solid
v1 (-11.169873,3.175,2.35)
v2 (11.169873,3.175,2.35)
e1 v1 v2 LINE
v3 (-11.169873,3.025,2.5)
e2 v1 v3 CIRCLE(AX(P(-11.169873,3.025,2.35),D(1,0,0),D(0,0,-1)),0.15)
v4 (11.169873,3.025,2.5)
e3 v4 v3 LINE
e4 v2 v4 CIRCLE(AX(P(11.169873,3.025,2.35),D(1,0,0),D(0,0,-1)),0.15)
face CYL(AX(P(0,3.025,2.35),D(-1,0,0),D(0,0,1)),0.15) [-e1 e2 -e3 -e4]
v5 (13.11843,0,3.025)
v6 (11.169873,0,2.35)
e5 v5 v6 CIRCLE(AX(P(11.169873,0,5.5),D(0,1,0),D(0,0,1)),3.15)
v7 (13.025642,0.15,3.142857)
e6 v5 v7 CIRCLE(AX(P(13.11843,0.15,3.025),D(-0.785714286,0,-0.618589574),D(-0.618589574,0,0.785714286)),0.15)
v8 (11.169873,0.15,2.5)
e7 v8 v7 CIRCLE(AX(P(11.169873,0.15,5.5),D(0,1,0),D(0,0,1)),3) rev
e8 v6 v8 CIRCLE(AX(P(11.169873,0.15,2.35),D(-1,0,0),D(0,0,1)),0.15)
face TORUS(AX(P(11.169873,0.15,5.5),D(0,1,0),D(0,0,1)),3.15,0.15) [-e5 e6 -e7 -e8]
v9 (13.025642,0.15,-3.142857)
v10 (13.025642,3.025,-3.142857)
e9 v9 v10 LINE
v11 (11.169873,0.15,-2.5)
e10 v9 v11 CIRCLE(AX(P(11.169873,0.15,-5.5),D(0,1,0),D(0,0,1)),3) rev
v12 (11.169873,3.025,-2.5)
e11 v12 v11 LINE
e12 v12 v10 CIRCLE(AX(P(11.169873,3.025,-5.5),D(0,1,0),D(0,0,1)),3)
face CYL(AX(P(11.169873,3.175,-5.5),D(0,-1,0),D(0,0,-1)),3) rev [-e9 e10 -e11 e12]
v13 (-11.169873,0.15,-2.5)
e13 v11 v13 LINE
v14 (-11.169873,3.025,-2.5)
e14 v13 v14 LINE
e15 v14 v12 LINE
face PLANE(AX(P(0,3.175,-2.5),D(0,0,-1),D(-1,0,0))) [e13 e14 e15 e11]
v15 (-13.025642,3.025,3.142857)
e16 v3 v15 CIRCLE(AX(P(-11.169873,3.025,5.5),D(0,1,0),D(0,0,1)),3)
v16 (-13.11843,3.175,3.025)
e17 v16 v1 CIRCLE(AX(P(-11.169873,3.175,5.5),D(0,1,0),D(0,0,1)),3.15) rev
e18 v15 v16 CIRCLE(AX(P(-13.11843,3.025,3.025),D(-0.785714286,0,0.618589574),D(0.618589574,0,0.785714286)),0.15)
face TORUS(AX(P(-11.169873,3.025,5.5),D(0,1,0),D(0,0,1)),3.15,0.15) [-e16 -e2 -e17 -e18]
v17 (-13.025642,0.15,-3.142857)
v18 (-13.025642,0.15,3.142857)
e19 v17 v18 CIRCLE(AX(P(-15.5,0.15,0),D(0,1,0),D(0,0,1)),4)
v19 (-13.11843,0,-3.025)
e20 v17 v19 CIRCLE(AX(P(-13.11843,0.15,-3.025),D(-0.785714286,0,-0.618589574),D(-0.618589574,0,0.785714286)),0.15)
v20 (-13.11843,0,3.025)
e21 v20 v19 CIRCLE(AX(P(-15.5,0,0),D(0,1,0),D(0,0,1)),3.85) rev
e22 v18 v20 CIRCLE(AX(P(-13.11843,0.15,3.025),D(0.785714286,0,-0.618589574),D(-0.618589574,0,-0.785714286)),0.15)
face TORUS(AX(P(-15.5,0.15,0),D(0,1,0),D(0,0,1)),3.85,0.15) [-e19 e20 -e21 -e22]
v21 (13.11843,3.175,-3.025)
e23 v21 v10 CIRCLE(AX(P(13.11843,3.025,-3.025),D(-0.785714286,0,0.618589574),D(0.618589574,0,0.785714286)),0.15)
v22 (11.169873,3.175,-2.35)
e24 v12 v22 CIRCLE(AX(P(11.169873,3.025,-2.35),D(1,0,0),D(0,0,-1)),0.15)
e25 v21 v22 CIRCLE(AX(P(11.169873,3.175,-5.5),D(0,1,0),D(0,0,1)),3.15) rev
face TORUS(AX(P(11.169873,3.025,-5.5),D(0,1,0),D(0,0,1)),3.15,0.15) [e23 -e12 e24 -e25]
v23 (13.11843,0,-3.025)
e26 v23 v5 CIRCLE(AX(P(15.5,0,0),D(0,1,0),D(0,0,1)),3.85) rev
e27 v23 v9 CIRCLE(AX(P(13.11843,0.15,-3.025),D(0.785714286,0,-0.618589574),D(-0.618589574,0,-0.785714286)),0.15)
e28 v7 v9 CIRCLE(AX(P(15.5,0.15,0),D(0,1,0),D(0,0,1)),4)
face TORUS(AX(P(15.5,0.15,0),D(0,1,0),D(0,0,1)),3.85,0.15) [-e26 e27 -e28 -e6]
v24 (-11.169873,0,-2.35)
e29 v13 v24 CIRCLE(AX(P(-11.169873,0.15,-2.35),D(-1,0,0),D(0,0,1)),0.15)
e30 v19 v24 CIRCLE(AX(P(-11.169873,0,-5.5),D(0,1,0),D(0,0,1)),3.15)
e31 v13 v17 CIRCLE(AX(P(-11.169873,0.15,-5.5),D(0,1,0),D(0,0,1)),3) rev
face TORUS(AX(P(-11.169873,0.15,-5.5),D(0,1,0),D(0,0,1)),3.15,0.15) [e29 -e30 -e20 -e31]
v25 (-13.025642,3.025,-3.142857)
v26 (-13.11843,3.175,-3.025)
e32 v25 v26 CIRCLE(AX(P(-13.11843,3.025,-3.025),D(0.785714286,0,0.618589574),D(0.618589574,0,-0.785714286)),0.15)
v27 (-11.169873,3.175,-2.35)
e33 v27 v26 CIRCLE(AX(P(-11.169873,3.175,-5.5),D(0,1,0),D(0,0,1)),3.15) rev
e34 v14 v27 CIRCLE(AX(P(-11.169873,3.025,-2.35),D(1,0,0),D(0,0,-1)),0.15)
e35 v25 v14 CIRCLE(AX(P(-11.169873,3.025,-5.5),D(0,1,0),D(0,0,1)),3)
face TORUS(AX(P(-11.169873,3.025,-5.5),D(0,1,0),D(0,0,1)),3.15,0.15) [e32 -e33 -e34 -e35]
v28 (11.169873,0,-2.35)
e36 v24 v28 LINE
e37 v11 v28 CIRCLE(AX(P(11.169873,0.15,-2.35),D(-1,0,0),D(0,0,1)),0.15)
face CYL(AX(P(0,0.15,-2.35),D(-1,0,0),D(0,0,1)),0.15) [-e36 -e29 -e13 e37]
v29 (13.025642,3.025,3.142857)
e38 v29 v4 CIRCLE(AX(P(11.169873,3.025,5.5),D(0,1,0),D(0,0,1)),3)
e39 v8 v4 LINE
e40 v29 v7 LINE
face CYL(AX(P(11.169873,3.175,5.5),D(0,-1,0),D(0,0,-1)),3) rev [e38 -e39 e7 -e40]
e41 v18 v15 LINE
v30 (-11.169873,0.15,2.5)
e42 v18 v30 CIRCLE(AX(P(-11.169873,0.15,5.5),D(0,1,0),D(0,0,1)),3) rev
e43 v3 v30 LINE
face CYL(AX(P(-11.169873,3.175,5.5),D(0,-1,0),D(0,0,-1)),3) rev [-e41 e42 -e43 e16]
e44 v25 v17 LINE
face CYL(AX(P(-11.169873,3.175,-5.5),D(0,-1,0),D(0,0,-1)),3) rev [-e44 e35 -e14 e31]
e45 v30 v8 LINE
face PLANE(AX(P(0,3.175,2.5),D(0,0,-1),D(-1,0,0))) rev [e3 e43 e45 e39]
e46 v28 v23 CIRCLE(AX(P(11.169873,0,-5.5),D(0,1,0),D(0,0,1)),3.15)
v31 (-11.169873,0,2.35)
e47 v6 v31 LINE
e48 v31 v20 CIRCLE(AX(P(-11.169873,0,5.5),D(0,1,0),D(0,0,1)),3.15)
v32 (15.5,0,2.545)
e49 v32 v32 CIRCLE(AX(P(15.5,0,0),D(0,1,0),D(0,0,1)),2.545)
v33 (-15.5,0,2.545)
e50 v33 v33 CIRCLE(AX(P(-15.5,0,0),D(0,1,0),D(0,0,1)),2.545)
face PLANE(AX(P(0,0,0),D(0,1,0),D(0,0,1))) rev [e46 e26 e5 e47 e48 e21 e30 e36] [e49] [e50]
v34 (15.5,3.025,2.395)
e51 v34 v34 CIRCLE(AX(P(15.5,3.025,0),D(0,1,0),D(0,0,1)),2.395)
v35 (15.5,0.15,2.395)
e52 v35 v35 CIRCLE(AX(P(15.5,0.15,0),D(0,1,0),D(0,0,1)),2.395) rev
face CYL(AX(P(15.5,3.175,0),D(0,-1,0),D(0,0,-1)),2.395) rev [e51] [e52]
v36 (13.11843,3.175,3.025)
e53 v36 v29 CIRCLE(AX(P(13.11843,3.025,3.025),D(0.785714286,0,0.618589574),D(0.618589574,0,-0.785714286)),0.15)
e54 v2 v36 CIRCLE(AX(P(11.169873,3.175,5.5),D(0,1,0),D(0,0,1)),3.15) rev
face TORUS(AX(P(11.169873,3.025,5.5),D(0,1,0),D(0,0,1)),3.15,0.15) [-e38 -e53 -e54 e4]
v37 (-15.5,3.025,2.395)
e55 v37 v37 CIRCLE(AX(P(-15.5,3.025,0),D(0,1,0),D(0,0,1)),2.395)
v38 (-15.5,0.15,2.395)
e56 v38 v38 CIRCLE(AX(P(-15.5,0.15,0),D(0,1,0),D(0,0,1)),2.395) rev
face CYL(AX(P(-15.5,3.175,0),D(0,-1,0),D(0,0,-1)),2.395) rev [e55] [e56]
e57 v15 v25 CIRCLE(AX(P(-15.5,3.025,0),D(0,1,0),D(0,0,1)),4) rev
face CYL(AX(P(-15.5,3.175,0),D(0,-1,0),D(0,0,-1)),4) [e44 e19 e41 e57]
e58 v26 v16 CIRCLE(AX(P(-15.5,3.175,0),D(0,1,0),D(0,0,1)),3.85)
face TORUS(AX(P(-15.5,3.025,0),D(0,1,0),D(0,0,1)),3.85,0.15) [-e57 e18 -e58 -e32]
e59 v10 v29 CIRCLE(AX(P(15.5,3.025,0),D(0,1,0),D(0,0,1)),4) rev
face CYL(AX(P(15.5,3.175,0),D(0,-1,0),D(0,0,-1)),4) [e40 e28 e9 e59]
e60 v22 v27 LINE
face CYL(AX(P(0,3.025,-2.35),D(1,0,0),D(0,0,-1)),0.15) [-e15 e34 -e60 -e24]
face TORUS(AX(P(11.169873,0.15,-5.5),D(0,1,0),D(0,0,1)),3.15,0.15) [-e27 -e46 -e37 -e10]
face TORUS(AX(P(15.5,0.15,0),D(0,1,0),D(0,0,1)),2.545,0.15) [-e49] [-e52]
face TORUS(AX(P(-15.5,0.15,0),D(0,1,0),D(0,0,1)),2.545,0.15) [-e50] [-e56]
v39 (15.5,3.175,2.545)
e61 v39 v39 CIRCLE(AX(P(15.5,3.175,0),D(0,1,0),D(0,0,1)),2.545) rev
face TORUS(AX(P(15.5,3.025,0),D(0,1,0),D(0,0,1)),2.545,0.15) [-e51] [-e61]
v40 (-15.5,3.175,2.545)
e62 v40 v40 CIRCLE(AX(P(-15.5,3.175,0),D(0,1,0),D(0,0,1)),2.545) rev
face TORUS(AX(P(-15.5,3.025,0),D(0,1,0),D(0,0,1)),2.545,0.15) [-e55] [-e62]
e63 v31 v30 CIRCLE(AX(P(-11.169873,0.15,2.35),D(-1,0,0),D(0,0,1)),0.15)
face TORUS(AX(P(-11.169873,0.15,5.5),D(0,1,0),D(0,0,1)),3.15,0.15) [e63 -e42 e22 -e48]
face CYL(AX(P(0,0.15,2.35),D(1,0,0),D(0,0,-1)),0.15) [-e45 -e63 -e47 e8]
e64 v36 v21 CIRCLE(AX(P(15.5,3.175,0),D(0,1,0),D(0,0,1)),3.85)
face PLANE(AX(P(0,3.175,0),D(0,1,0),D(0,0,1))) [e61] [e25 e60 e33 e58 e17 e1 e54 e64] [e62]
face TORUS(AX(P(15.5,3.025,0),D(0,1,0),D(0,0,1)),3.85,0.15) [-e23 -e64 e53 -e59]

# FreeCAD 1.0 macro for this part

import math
import FreeCAD as App
import Part
import Sketcher
from FreeCAD import Vector


def edges_at(feature, points):
    """Names of the edges that pass closest to the given points."""
    edges = feature.Shape.Edges
    near = lambda p: min(range(len(edges)), key=lambda i: edges[i].distToShape(Part.Vertex(*p))[0])
    return sorted({f"Edge{near(p) + 1}" for p in points})

doc = App.newDocument("Part")
params = doc.addObject("Spreadsheet::Sheet", "Params")
for row, (alias, value) in enumerate([
    ("sketch1_radius", "4 mm"),
    ("sketch1_diameter", "4.79 mm"),
    ("pad1_length", "3.175 mm"),
    ("fillet_radius", "3 mm"),
    ("fillet2_radius", "0.15 mm"),
], start=1):
    params.set(f"A{row}", alias)
    params.set(f"B{row}", "=" + value)
    params.setAlias(f"B{row}", alias)

body = doc.addObject("PartDesign::Body", "Body")

sketch1 = doc.addObject("Sketcher::SketchObject", "Sketch")
body.addObject(sketch1)
sketch1.AttachmentSupport = (doc.XZ_Plane, [""])
sketch1.MapMode = "FlatFace"
sketch1.addGeometry([
    Part.ArcOfCircle(Part.Circle(Vector(-15.5, 0, 0), Vector(0, 0, 1), 4), math.radians(39), math.radians(321)),
    Part.LineSegment(Vector(-12.4, 2.5, 0), Vector(12.4, 2.5, 0)),
    Part.ArcOfCircle(Part.Circle(Vector(15.5, 0, 0), Vector(0, 0, 1), 4), math.radians(-141), math.radians(141)),
    Part.LineSegment(Vector(12.4, -2.5, 0), Vector(-12.4, -2.5, 0)),
    Part.Circle(Vector(-15.5, 0, 0), Vector(0, 0, 1), 2.4),
    Part.Circle(Vector(15.5, 0, 0), Vector(0, 0, 1), 2.4),
], False)
sketch1.addConstraint([
    Sketcher.Constraint("Coincident", 0, 1, 1, 1),
    Sketcher.Constraint("Coincident", 1, 2, 2, 2),
    Sketcher.Constraint("Coincident", 2, 1, 3, 1),
    Sketcher.Constraint("Coincident", 3, 2, 0, 2),
    Sketcher.Constraint("Horizontal", 1),
    Sketcher.Constraint("Horizontal", 3),
    Sketcher.Constraint("Coincident", 4, 3, 0, 3),
    Sketcher.Constraint("Coincident", 5, 3, 2, 3),
    Sketcher.Constraint("Equal", 0, 2),
    Sketcher.Constraint("Equal", 4, 5),
    Sketcher.Constraint("Symmetric", 0, 3, 2, 3, -1, 1),
    Sketcher.Constraint("Symmetric", 1, 2, 2, 1, -1),
    Sketcher.Constraint("Radius", 0, 4.0),
    Sketcher.Constraint("Diameter", 4, 4.79),
    Sketcher.Constraint("DistanceX", 0, 3, 2, 3, 31.0),
    Sketcher.Constraint("DistanceY", 2, 1, 1, 2, 5.0),
])
sketch1.setExpression("Constraints[12]", "Params.sketch1_radius")
sketch1.setExpression("Constraints[13]", "Params.sketch1_diameter")
pad1 = doc.addObject("PartDesign::Pad", "Pad")
body.addObject(pad1)
pad1.Profile = sketch1
pad1.setExpression("Length", "Params.pad1_length")
pad1.Reversed = True
doc.recompute()

fillet = doc.addObject("PartDesign::Fillet", "Fillet")
body.addObject(fillet)
fillet.Base = (pad1, edges_at(pad1, [
    (-12.378, 1.587, -2.5),
    (12.378, 1.587, -2.5),
    (12.378, 1.587, 2.5),
    (-12.378, 1.587, 2.5),
]))
fillet.setExpression("Radius", "Params.fillet_radius")
doc.recompute()

fillet2 = doc.addObject("PartDesign::Fillet", "Fillet001")
body.addObject(fillet2)
fillet2.Base = (fillet, edges_at(fillet, [
    (-15.5, 0, -2.395),
    (-19.5, 0, 0),
    (-19.5, 3.175, 0),
    (0, 0, -2.5),
    (0, 3.175, -2.5),
    (19.5, 0, 0),
    (19.5, 3.175, 0),
    (0, 0, 2.5),
    (0, 3.175, 2.5),
    (-12.152, 0, -2.665),
    (15.5, 3.175, -2.395),
    (-12.152, 3.175, -2.665),
    (12.152, 0, -2.665),
    (12.152, 3.175, -2.665),
    (12.152, 0, 2.665),
    (12.152, 3.175, 2.665),
    (-12.152, 0, 2.665),
    (-12.152, 3.175, 2.665),
    (-15.5, 3.175, -2.395),
    (15.5, 0, -2.395),
]))
fillet2.setExpression("Radius", "Params.fillet2_radius")

doc.recompute()
